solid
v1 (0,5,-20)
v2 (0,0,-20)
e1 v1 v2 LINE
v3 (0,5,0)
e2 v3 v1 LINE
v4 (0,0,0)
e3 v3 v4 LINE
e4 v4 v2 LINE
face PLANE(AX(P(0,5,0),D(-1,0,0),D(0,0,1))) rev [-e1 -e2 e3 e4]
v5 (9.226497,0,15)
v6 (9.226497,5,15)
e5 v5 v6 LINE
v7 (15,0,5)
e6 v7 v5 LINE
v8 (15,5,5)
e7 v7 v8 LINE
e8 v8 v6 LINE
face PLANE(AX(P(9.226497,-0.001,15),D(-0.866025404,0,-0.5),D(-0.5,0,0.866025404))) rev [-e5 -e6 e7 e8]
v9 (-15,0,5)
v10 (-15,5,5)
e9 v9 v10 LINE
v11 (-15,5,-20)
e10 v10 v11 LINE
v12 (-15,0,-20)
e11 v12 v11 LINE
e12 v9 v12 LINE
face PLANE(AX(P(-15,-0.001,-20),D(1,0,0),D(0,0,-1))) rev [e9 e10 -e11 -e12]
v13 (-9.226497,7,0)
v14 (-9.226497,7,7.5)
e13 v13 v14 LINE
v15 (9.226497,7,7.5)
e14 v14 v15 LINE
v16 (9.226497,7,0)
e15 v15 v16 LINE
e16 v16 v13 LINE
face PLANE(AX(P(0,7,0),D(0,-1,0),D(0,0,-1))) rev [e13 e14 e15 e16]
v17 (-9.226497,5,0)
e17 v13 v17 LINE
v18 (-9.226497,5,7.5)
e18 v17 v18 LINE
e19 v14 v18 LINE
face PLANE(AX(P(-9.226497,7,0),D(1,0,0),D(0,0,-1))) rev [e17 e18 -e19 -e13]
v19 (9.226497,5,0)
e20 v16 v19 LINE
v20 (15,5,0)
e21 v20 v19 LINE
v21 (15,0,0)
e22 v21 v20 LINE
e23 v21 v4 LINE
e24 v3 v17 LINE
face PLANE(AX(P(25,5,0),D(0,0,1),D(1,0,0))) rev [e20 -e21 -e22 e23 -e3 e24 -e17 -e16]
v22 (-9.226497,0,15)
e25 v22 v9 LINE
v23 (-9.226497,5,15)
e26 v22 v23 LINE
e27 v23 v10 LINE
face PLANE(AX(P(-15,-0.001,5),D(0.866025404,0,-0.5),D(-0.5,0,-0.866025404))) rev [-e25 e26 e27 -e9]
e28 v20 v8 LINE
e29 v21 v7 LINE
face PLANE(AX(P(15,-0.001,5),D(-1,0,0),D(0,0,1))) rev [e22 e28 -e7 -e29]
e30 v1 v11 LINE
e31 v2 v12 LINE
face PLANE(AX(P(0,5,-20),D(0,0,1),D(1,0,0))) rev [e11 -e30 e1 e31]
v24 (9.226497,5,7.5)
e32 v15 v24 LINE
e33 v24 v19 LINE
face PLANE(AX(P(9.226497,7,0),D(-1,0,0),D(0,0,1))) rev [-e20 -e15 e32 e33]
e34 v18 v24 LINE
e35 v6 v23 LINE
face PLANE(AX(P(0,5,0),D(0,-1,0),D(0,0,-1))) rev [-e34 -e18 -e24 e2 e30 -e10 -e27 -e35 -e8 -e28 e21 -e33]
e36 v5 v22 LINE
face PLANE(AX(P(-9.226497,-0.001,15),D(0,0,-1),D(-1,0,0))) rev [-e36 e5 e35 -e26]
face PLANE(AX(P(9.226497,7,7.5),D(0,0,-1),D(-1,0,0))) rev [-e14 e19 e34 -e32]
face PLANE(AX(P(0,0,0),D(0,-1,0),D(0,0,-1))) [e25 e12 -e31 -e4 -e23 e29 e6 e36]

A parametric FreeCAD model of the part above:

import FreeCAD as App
import Part
import Sketcher

V = App.Vector
Q = App.Units.Quantity


def add_polygon(sketch, points):
    """Adds a closed chain of lines whose ends are joined by coincident constraints."""
    first, n = sketch.GeometryCount, len(points)
    for a, b in zip(points, points[1:] + points[:1]):
        sketch.addGeometry(Part.LineSegment(App.Vector(*a, 0), App.Vector(*b, 0)), False)
    for i in range(n):
        sketch.addConstraint(Sketcher.Constraint("Coincident", first + i, 2, first + (i + 1) % n, 1))

doc = App.newDocument("Part")
body = doc.addObject("PartDesign::Body", "Body")

sketch1 = body.newObject("Sketcher::SketchObject", "Sketch")
sketch1.AttachmentSupport = (doc.getObject("XZ_Plane"), [""])
sketch1.MapMode = "FlatFace"
add_polygon(sketch1, [(0, 0), (0, -20), (-25, -20), (-25, 20), (-8, 49), (8, 49), (25, 20), (25, 0)])
sketch1.addConstraint(Sketcher.Constraint("Vertical", 0))
sketch1.addConstraint(Sketcher.Constraint("Horizontal", 1))
sketch1.addConstraint(Sketcher.Constraint("Vertical", 2))
sketch1.addConstraint(Sketcher.Constraint("Horizontal", 4))
sketch1.addConstraint(Sketcher.Constraint("Vertical", 6))
sketch1.addConstraint(Sketcher.Constraint("Horizontal", 7))
sketch1.addConstraint(Sketcher.Constraint("Coincident", 7, 2, -1, 1))
sketch1.addConstraint(Sketcher.Constraint("Symmetric", 1, 2, 5, 2, -1, 1))
sketch1.addConstraint(Sketcher.Constraint("Horizontal", 2, 2, 5, 2))
sketch1.addConstraint(Sketcher.Constraint("Equal", 3, 5))
sketch1.addConstraint(Sketcher.Constraint("DistanceX", 1, 2, 1, 1, 25.0))
sketch1.addConstraint(Sketcher.Constraint("DistanceY", 0, 2, 0, 1, 20.0))
sketch1.addConstraint(Sketcher.Constraint("Angle", 3, Q("60 deg")))
sketch1.addConstraint(Sketcher.Constraint("DistanceX", 4, 1, 4, 2, 16.000984))
pad1 = body.newObject("PartDesign::Pad", "Pad")
pad1.Profile = sketch1
pad1.Length = 5
pad1.Reversed = True

sketch2 = body.newObject("Sketcher::SketchObject", "Sketch001")
sketch2.AttachmentSupport = (doc.getObject("XZ_Plane"), [""])
sketch2.MapMode = "FlatFace"
sketch2.AttachmentOffset = App.Placement(V(0, 0, -5), App.Rotation())
add_polygon(sketch2, [(-15, 5), (-15, -20), (-25, -20), (-25, 20), (-8, 49), (8, 49), (25, 20), (25, 0), (15, 0), (15, 5), (9, 15), (-9, 15)])
sketch2.addConstraint(Sketcher.Constraint("Vertical", 0))
sketch2.addConstraint(Sketcher.Constraint("Horizontal", 1))
sketch2.addConstraint(Sketcher.Constraint("Vertical", 2))
sketch2.addConstraint(Sketcher.Constraint("Horizontal", 4))
sketch2.addConstraint(Sketcher.Constraint("Vertical", 6))
sketch2.addConstraint(Sketcher.Constraint("Horizontal", 7))
sketch2.addConstraint(Sketcher.Constraint("Vertical", 8))
sketch2.addConstraint(Sketcher.Constraint("Horizontal", 10))
sketch2.addConstraint(Sketcher.Constraint("Symmetric", 1, 2, 5, 2, -1, 1))
sketch2.addConstraint(Sketcher.Constraint("Symmetric", 8, 2, 11, 2, -2))
sketch2.addConstraint(Sketcher.Constraint("PointOnObject", 6, 2, -1))
sketch2.addConstraint(Sketcher.Constraint("Parallel", 5, 9))
sketch2.addConstraint(Sketcher.Constraint("Parallel", 3, 11))
sketch2.addConstraint(Sketcher.Constraint("Horizontal", 2, 2, 5, 2))
sketch2.addConstraint(Sketcher.Constraint("Equal", 3, 5))
sketch2.addConstraint(Sketcher.Constraint("DistanceX", 1, 2, 1, 1, 10.0))
sketch2.addConstraint(Sketcher.Constraint("DistanceY", 0, 2, 0, 1, 25.0))
sketch2.addConstraint(Sketcher.Constraint("DistanceY", 2, 1, 2, 2, 40.0))
sketch2.addConstraint(Sketcher.Constraint("Angle", 3, Q("60 deg")))
sketch2.addConstraint(Sketcher.Constraint("DistanceX", 0, 2, -1, 1, 15.0))
sketch2.addConstraint(Sketcher.Constraint("DistanceY", -1, 1, 9, 2, 15.0))
sketch2.addConstraint(Sketcher.Constraint("DistanceX", 4, 1, 4, 2, 16.000984))
pocket1 = body.newObject("PartDesign::Pocket", "Pocket")
pocket1.Profile = sketch2
pocket1.Type = "UpToFirst"
pocket1.Reversed = True

sketch3 = body.newObject("Sketcher::SketchObject", "Sketch002")
sketch3.AttachmentSupport = (doc.getObject("XZ_Plane"), [""])
sketch3.MapMode = "FlatFace"
sketch3.AttachmentOffset = App.Placement(V(0, 0, -5), App.Rotation())
add_polygon(sketch3, [(-9, 0), (-9, 8), (9, 8), (9, 0)])
sketch3.addConstraint(Sketcher.Constraint("Vertical", 0))
sketch3.addConstraint(Sketcher.Constraint("Horizontal", 1))
sketch3.addConstraint(Sketcher.Constraint("Vertical", 2))
sketch3.addConstraint(Sketcher.Constraint("Horizontal", 3))
sketch3.addConstraint(Sketcher.Constraint("Symmetric", 2, 2, 3, 2, -1, 1))
sketch3.addConstraint(Sketcher.Constraint("DistanceY", 0, 1, 0, 2, 7.5))
sketch3.addConstraint(Sketcher.Constraint("DistanceX", 1, 1, 1, 2, 18.452995))
pad2 = body.newObject("PartDesign::Pad", "Pad001")
pad2.Profile = sketch3
pad2.Length = 2
pad2.Reversed = True

doc.recompute()
